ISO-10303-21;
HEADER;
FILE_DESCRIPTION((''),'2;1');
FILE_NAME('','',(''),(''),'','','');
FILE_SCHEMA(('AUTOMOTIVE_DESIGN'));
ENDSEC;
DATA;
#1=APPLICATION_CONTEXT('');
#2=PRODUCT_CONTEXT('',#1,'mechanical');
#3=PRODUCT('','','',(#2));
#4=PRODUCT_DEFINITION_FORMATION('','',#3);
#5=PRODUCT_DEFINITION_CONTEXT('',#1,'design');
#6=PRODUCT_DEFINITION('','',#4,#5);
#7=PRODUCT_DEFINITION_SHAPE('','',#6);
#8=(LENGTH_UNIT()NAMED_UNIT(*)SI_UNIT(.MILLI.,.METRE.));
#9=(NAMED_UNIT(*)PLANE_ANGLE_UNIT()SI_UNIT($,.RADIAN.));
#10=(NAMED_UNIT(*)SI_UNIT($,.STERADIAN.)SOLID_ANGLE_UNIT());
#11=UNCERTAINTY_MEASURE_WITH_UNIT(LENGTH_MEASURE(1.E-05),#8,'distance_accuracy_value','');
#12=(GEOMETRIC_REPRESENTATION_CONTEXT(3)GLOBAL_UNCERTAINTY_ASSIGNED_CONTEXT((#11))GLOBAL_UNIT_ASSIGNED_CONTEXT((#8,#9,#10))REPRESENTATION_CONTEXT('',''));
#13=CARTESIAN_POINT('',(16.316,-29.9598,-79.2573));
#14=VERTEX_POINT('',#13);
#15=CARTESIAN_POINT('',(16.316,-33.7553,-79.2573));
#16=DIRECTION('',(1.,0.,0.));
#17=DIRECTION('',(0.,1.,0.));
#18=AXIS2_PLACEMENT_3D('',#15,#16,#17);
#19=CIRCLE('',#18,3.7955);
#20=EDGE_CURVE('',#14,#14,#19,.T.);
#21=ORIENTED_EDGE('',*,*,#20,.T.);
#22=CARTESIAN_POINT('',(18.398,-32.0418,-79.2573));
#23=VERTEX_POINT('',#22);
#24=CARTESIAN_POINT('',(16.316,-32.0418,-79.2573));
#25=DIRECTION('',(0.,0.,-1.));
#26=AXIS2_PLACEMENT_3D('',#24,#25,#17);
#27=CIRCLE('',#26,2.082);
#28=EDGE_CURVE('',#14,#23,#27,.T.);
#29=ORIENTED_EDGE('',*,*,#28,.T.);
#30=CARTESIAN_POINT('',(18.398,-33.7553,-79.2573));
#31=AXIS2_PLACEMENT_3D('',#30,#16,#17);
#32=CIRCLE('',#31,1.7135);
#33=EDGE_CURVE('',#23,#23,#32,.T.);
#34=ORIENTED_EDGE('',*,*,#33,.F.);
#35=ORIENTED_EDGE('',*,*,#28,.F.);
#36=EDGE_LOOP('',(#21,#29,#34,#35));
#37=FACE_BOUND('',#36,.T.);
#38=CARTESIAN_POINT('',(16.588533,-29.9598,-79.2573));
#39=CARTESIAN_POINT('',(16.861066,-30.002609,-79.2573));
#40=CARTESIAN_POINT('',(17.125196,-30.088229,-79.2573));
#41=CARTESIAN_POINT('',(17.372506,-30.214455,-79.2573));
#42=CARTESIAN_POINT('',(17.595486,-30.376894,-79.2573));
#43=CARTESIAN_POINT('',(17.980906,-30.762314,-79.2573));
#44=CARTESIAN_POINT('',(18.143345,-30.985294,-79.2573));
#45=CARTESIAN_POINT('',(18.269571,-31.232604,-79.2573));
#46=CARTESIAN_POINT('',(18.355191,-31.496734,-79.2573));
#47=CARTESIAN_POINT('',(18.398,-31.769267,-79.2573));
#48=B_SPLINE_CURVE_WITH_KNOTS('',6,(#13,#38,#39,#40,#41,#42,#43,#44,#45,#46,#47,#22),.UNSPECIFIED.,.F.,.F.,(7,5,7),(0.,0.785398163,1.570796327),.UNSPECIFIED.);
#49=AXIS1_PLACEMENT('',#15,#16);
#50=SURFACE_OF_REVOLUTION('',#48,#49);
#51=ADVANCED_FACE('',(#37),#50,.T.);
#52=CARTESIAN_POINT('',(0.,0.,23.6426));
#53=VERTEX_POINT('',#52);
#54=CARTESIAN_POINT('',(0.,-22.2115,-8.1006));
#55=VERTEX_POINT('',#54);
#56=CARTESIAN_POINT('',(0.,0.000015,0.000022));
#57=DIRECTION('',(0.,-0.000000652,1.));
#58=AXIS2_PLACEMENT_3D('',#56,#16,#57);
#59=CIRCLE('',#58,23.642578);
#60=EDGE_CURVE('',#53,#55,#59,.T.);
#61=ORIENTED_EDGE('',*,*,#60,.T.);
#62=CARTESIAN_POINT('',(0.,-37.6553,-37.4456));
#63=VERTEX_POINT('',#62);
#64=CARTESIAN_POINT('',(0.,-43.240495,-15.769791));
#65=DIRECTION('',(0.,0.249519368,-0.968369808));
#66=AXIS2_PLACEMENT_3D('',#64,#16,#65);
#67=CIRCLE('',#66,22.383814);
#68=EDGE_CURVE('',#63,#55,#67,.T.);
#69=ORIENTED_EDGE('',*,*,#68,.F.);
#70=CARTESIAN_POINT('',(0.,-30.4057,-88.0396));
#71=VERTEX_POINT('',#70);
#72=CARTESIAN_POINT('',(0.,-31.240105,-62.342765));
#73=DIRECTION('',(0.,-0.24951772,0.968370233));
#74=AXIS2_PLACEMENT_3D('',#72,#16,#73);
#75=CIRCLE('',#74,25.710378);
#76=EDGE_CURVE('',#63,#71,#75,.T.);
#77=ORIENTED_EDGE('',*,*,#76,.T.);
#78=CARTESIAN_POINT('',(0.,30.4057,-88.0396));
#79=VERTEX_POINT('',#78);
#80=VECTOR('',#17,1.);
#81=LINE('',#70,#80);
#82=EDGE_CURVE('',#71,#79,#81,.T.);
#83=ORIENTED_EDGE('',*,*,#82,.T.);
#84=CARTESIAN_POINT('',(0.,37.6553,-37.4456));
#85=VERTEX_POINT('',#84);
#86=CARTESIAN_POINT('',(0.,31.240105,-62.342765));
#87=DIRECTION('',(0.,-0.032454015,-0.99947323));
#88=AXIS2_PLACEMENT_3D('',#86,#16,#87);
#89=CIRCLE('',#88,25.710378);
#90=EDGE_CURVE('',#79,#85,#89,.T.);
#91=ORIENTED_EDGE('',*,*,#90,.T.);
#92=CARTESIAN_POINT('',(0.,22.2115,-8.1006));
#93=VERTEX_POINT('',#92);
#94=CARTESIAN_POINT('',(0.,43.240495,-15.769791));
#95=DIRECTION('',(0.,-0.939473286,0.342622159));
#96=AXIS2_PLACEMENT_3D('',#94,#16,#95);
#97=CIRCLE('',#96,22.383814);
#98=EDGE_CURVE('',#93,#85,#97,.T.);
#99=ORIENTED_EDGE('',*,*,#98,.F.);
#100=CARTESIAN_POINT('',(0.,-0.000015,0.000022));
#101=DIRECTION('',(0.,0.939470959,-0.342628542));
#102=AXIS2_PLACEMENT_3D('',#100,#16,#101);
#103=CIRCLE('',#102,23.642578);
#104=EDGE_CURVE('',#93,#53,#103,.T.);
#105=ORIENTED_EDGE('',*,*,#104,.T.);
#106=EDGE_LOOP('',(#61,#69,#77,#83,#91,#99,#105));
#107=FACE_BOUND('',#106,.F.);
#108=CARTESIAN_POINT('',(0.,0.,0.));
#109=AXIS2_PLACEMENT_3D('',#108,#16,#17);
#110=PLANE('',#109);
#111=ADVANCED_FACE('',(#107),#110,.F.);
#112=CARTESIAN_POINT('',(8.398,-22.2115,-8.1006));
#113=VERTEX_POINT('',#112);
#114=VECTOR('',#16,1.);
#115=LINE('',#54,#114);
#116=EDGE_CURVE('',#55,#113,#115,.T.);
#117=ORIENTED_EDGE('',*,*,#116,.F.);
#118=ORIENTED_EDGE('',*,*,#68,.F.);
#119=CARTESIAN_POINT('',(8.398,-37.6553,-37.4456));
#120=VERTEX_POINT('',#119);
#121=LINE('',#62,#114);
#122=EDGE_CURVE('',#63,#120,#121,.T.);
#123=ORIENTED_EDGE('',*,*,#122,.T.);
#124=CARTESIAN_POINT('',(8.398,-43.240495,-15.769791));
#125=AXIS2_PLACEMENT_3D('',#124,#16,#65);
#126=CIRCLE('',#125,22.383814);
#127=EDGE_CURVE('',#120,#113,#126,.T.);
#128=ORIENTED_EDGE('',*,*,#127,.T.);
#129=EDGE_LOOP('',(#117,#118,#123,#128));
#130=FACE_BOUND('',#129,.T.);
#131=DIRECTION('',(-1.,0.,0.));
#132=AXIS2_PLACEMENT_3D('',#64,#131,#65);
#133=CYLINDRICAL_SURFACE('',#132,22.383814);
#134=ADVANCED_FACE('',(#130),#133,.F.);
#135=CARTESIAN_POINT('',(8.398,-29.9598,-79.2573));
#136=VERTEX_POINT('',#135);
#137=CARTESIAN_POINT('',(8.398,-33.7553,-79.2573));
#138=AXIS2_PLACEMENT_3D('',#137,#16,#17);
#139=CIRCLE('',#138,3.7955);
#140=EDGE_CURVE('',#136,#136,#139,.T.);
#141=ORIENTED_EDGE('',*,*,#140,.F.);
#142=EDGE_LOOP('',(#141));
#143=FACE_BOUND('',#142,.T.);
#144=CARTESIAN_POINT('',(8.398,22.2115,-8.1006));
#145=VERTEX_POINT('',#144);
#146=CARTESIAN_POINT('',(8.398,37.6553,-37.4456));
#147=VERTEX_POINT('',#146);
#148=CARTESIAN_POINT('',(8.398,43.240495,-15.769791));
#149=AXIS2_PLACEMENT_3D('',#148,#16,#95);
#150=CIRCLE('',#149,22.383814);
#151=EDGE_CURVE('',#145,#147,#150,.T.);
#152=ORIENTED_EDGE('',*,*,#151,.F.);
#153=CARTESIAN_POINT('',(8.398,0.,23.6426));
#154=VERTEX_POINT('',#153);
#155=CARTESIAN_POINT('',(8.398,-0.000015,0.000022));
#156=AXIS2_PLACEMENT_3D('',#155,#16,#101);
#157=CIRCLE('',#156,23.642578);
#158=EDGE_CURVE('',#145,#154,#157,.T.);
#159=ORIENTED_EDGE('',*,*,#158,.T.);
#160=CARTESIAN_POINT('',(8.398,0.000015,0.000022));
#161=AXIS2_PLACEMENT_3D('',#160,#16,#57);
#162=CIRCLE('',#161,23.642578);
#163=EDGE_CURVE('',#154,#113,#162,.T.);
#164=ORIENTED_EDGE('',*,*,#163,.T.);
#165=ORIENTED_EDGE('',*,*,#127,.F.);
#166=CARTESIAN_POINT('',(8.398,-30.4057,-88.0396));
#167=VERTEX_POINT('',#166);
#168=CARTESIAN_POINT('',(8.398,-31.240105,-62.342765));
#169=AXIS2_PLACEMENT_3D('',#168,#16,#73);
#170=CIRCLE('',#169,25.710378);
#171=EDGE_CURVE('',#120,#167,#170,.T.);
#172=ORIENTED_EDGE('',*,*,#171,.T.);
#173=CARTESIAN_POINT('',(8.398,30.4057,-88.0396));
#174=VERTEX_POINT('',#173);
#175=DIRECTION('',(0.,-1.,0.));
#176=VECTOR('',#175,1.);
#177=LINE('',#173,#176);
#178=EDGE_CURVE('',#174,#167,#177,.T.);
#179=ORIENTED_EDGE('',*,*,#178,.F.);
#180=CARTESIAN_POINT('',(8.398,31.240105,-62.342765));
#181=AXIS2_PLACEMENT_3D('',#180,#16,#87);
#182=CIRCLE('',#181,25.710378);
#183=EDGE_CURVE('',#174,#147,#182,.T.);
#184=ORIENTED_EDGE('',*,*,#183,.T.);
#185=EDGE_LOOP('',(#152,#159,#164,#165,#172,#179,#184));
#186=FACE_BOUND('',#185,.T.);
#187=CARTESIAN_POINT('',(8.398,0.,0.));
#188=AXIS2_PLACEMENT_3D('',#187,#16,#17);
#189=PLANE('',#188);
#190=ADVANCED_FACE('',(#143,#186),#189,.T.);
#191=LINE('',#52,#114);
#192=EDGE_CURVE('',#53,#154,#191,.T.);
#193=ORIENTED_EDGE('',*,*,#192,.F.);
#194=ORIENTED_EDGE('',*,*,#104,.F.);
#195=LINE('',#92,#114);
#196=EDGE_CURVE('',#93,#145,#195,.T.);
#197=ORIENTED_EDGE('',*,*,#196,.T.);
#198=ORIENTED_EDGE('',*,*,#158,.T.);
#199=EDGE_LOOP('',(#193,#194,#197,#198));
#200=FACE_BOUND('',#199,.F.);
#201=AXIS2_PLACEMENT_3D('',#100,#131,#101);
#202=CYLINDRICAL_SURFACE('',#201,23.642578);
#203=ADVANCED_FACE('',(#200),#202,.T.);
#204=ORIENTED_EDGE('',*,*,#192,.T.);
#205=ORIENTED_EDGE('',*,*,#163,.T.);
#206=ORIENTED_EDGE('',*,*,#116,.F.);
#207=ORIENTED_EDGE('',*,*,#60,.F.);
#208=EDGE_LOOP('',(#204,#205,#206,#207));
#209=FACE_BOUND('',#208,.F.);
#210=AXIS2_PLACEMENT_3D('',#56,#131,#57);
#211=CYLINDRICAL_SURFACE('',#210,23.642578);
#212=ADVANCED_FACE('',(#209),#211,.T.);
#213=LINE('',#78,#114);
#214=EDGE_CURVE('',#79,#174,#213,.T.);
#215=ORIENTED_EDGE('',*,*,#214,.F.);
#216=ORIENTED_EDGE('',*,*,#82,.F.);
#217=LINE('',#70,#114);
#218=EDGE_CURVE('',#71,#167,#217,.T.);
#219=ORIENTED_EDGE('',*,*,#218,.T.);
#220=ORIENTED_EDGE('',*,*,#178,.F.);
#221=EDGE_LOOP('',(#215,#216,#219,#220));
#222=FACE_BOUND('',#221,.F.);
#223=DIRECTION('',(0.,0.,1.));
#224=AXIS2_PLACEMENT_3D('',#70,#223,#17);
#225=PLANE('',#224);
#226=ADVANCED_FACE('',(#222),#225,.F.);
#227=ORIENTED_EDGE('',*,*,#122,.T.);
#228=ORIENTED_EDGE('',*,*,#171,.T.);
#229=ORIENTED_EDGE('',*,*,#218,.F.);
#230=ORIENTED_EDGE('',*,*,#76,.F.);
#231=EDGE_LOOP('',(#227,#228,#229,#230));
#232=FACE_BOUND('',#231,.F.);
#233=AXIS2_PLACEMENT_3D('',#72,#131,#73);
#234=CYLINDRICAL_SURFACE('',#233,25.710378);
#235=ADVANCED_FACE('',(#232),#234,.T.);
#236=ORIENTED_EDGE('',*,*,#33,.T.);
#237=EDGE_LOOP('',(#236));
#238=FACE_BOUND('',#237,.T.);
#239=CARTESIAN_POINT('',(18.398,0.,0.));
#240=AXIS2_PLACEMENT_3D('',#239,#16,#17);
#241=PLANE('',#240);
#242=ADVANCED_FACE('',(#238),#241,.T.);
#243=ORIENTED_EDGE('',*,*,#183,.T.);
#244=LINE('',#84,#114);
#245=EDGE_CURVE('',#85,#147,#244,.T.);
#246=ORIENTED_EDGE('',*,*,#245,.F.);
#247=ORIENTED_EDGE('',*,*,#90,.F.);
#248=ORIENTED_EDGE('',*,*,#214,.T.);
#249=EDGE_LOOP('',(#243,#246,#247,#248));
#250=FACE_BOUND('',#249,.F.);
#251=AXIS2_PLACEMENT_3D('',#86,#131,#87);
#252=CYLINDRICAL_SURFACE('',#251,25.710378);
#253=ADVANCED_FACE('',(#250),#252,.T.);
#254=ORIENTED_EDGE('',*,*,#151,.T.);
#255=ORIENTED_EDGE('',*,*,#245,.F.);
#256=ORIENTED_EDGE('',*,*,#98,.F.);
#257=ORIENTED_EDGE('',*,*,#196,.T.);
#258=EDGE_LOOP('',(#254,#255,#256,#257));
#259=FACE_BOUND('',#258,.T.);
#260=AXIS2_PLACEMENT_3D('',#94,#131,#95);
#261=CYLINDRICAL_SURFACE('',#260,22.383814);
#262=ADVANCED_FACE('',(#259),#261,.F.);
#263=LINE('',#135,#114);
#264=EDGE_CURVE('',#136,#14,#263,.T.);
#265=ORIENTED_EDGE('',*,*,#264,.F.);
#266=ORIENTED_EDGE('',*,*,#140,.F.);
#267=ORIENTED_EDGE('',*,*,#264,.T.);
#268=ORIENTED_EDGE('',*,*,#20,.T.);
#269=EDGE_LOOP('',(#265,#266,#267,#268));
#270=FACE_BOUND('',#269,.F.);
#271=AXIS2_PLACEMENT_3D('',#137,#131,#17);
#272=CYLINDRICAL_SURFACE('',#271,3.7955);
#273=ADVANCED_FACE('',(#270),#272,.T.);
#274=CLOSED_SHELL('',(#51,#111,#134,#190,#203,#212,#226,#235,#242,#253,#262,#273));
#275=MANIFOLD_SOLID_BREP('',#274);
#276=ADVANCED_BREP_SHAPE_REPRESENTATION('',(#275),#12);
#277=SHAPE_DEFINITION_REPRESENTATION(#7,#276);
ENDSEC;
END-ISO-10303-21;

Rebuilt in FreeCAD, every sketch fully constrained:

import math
import FreeCAD as App
import Part
import Sketcher


def edges_at(feature, points):
    """Names of the edges that pass closest to the given points."""
    edges = feature.Shape.Edges
    near = lambda p: min(range(len(edges)), key=lambda i: edges[i].distToShape(Part.Vertex(*p))[0])
    return sorted({f"Edge{near(p) + 1}" for p in points})

doc = App.newDocument("Part")
body = doc.addObject("PartDesign::Body", "Body")

# Sketch on YZ plane
sketch1 = doc.addObject("Sketcher::SketchObject", "Sketch")
body.addObject(sketch1)
sketch1.AttachmentSupport = (doc.YZ_Plane, [""])
sketch1.MapMode = "FlatFace"
sketch1.addGeometry(Part.ArcOfCircle(Part.Circle(App.Vector(-31, -62, 0), App.Vector(0, 0, 1), 26), math.radians(104), math.radians(272)), False)
sketch1.addGeometry(Part.LineSegment(App.Vector(-30, -88, 0), App.Vector(30, -88, 0)), False)
sketch1.addGeometry(Part.ArcOfCircle(Part.Circle(App.Vector(31, -62, 0), App.Vector(0, 0, 1), 26), math.radians(-92), math.radians(76)), False)
sketch1.addGeometry(Part.ArcOfCircle(Part.Circle(App.Vector(43, -16, 0), App.Vector(0, 0, 1), 22), math.radians(160), math.radians(256)), False)
sketch1.addGeometry(Part.ArcOfCircle(Part.Circle(App.Vector(0, 0, 0), App.Vector(0, 0, 1), 24), math.radians(-20), math.radians(90)), False)
sketch1.addGeometry(Part.ArcOfCircle(Part.Circle(App.Vector(0, 0, 0), App.Vector(0, 0, 1), 24), math.radians(90), math.radians(200)), False)
sketch1.addGeometry(Part.ArcOfCircle(Part.Circle(App.Vector(-43, -16, 0), App.Vector(0, 0, 1), 22), math.radians(-76), math.radians(20)), False)
sketch1.addConstraint(Sketcher.Constraint("Coincident", 0, 2, 1, 1))
sketch1.addConstraint(Sketcher.Constraint("Coincident", 1, 2, 2, 1))
sketch1.addConstraint(Sketcher.Constraint("Tangent", 2, 2, 3, 2))
sketch1.addConstraint(Sketcher.Constraint("Tangent", 3, 1, 4, 1))
sketch1.addConstraint(Sketcher.Constraint("Tangent", 4, 2, 5, 1))
sketch1.addConstraint(Sketcher.Constraint("Tangent", 5, 2, 6, 2))
sketch1.addConstraint(Sketcher.Constraint("Tangent", 6, 1, 0, 1))
sketch1.addConstraint(Sketcher.Constraint("Horizontal", 1))
sketch1.addConstraint(Sketcher.Constraint("Coincident", 4, 3, -1, 1))
sketch1.addConstraint(Sketcher.Constraint("Equal", 0, 2))
sketch1.addConstraint(Sketcher.Constraint("Equal", 4, 5))
sketch1.addConstraint(Sketcher.Constraint("Equal", 3, 6))
sketch1.addConstraint(Sketcher.Constraint("Symmetric", 0, 3, 2, 3, -2))
sketch1.addConstraint(Sketcher.Constraint("PointOnObject", 4, 2, -2))
sketch1.addConstraint(Sketcher.Constraint("Radius", 0, 25.7104))
sketch1.addConstraint(Sketcher.Constraint("Radius", 3, 22.3838))
sketch1.addConstraint(Sketcher.Constraint("Radius", 4, 23.6426))
sketch1.addConstraint(Sketcher.Constraint("DistanceX", 0, 3, -1, 1, 31.24))
sketch1.addConstraint(Sketcher.Constraint("DistanceX", 1, 1, 1, 2, 60.8114))
sketch1.addConstraint(Sketcher.Constraint("DistanceY", 2, 3, 3, 3, 46.573))
pad1 = doc.addObject("PartDesign::Pad", "Pad")
body.addObject(pad1)
pad1.Profile = sketch1
pad1.Length = 8.398

# Sketch on YZ plane
sketch2 = doc.addObject("Sketcher::SketchObject", "Sketch001")
body.addObject(sketch2)
sketch2.AttachmentSupport = (doc.YZ_Plane, [""])
sketch2.MapMode = "FlatFace"
sketch2.AttachmentOffset = App.Placement(App.Vector(0, 0, 8.398), App.Rotation())
sketch2.addGeometry(Part.Circle(App.Vector(-33.8, -79.3, 0), App.Vector(0, 0, 1), 3.8), False)
sketch2.addConstraint(Sketcher.Constraint("Diameter", 0, 7.591))
sketch2.addConstraint(Sketcher.Constraint("DistanceX", 0, 3, -1, 1, 33.7553))
sketch2.addConstraint(Sketcher.Constraint("DistanceY", 0, 3, -1, 1, 79.2573))
pad2 = doc.addObject("PartDesign::Pad", "Pad001")
body.addObject(pad2)
pad2.Profile = sketch2
pad2.Length = 10
doc.recompute()

fillet = doc.addObject("PartDesign::Fillet", "Fillet")
body.addObject(fillet)
fillet.Base = (pad2, edges_at(pad2, [(18.398, -37.294, -80.63)]))
fillet.Radius = 2.082

doc.recompute()
